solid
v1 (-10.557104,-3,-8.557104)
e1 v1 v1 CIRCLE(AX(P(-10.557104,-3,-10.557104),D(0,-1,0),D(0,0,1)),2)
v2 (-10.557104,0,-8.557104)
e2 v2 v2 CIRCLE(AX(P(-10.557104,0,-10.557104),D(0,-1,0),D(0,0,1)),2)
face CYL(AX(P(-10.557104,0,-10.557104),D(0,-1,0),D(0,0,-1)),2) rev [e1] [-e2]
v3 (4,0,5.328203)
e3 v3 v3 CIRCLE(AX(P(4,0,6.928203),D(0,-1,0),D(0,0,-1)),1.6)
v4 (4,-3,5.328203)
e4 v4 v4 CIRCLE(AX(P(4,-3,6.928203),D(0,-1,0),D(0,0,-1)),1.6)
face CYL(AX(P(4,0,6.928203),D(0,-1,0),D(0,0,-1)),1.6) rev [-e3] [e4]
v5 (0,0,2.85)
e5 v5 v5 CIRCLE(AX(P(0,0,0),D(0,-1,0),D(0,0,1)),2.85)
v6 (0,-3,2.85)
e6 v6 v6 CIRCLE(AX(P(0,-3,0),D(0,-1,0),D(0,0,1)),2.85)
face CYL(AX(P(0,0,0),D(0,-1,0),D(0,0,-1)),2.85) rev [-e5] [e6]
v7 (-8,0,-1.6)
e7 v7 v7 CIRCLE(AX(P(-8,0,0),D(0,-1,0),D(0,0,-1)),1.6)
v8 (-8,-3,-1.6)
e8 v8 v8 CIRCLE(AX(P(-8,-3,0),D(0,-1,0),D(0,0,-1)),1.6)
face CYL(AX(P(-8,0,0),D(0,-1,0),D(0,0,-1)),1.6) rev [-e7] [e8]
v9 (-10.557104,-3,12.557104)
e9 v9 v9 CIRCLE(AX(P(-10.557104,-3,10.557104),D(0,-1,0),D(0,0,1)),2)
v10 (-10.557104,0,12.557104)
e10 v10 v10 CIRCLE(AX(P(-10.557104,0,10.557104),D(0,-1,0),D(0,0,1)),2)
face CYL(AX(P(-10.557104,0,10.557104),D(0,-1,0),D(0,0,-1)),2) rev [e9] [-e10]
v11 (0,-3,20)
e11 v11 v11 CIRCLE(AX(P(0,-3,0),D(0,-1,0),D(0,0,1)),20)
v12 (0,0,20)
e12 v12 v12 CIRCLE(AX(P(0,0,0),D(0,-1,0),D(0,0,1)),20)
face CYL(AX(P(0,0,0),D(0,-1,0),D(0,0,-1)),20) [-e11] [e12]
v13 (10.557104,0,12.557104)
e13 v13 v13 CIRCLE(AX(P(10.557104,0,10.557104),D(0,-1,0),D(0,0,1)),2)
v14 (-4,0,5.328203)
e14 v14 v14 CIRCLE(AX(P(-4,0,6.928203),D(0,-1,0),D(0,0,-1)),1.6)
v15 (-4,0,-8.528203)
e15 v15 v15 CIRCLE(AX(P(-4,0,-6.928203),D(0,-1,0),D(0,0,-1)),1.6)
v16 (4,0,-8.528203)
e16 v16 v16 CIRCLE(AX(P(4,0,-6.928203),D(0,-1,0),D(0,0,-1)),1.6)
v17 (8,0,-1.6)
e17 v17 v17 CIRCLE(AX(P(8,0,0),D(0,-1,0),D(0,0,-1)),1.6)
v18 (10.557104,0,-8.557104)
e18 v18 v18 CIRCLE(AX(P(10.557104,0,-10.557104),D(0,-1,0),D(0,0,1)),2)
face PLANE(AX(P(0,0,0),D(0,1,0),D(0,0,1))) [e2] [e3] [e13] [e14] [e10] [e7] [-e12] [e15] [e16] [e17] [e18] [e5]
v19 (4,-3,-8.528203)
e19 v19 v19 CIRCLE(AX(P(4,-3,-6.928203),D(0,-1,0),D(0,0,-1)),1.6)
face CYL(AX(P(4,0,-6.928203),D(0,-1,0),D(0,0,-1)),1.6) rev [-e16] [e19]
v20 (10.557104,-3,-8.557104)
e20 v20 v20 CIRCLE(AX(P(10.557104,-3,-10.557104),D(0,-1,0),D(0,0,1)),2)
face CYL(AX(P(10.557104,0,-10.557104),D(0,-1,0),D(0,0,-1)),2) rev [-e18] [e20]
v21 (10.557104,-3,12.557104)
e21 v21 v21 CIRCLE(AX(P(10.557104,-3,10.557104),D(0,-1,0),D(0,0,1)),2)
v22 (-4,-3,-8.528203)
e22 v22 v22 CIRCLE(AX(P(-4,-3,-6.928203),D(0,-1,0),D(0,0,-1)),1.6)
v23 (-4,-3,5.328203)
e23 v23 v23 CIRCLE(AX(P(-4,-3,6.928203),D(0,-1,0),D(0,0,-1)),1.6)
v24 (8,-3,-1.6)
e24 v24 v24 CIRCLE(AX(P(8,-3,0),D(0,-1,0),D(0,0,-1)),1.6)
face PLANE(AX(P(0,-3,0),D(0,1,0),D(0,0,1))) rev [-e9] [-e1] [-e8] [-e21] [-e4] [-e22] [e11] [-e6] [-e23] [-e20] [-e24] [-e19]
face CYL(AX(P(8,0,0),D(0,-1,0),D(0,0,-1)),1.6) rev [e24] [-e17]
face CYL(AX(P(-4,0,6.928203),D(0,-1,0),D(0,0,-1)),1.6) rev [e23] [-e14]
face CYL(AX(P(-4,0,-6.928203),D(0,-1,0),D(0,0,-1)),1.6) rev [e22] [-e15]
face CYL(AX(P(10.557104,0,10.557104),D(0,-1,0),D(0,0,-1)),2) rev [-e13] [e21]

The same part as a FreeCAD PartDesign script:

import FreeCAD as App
import Part
import Sketcher
from FreeCAD import Vector
Q = App.Units.Quantity

doc = App.newDocument("Part")
body = doc.addObject("PartDesign::Body", "Body")

sketch1 = body.newObject("Sketcher::SketchObject", "Sketch")
sketch1.AttachmentSupport = (doc.getObject("XZ_Plane"), [""])
sketch1.MapMode = "FlatFace"
sketch1.AttachmentOffset = App.Placement(Vector(0, 0, 3), App.Rotation())
sketch1.addGeometry(Part.Circle(Vector(0, 0, 0), Vector(0, 0, 1), 20), False)
sketch1.addGeometry(Part.Circle(Vector(-10.6, -10.6, 0), Vector(0, 0, 1), 2), False)
sketch1.addGeometry(Part.Circle(Vector(-4, -6.9, 0), Vector(0, 0, 1), 1.6), False)
sketch1.addGeometry(Part.Circle(Vector(4, -6.9, 0), Vector(0, 0, 1), 1.6), False)
sketch1.addGeometry(Part.Circle(Vector(10.6, -10.6, 0), Vector(0, 0, 1), 2), False)
sketch1.addGeometry(Part.Circle(Vector(-8, 0, 0), Vector(0, 0, 1), 1.6), False)
sketch1.addGeometry(Part.Circle(Vector(0, 0, 0), Vector(0, 0, 1), 2.9), False)
sketch1.addGeometry(Part.Circle(Vector(-10.6, 10.6, 0), Vector(0, 0, 1), 2), False)
sketch1.addGeometry(Part.Circle(Vector(-4, 6.9, 0), Vector(0, 0, 1), 1.6), False)
sketch1.addGeometry(Part.Circle(Vector(8, 0, 0), Vector(0, 0, 1), 1.6), False)
sketch1.addGeometry(Part.Circle(Vector(4, 6.9, 0), Vector(0, 0, 1), 1.6), False)
sketch1.addGeometry(Part.Circle(Vector(10.6, 10.6, 0), Vector(0, 0, 1), 2), False)
sketch1.addConstraint(Sketcher.Constraint("Coincident", 0, 3, -1, 1))
sketch1.addConstraint(Sketcher.Constraint("Coincident", 6, 3, -1, 1))
sketch1.addConstraint(Sketcher.Constraint("Equal", 2, 3))
sketch1.addConstraint(Sketcher.Constraint("Equal", 1, 4))
sketch1.addConstraint(Sketcher.Constraint("Equal", 3, 5))
sketch1.addConstraint(Sketcher.Constraint("Equal", 4, 7))
sketch1.addConstraint(Sketcher.Constraint("Equal", 5, 8))
sketch1.addConstraint(Sketcher.Constraint("Equal", 8, 9))
sketch1.addConstraint(Sketcher.Constraint("Equal", 9, 10))
sketch1.addConstraint(Sketcher.Constraint("Equal", 7, 11))
sketch1.addConstraint(Sketcher.Constraint("Symmetric", 4, 3, 7, 3, -1, 1))
sketch1.addConstraint(Sketcher.Constraint("Symmetric", 3, 3, 8, 3, -1, 1))
sketch1.addConstraint(Sketcher.Constraint("Symmetric", 5, 3, 9, 3, -1, 1))
sketch1.addConstraint(Sketcher.Constraint("Symmetric", 2, 3, 10, 3, -1, 1))
sketch1.addConstraint(Sketcher.Constraint("Symmetric", 1, 3, 11, 3, -1, 1))
sketch1.addConstraint(Sketcher.Constraint("Symmetric", 2, 3, 3, 3, -2))
sketch1.addConstraint(Sketcher.Constraint("Symmetric", 1, 3, 4, 3, -2))
sketch1.addConstraint(Sketcher.Constraint("PointOnObject", 5, 3, -1))
sketch1.addConstraint(Sketcher.Constraint("Diameter", 0, Q("40 mm")))
sketch1.addConstraint(Sketcher.Constraint("Diameter", 1, Q("4 mm")))
sketch1.addConstraint(Sketcher.Constraint("Diameter", 2, Q("3.2 mm")))
sketch1.addConstraint(Sketcher.Constraint("Diameter", 6, Q("5.7 mm")))
sketch1.addConstraint(Sketcher.Constraint("DistanceX", 2, 3, -1, 1, Q("4 mm")))
sketch1.addConstraint(Sketcher.Constraint("DistanceX", 5, 3, -1, 1, Q("8 mm")))
sketch1.addConstraint(Sketcher.Constraint("DistanceY", 1, 3, 2, 3, Q("3.628901 mm")))
sketch1.addConstraint(Sketcher.Constraint("DistanceX", 1, 3, 4, 3, Q("21.114208 mm")))
sketch1.addConstraint(Sketcher.Constraint("DistanceY", 1, 3, 7, 3, Q("21.114208 mm")))
pad1 = body.newObject("PartDesign::Pad", "Pad")
pad1.Profile = sketch1
pad1.Length = 3
pad1.Reversed = True

doc.recompute()
